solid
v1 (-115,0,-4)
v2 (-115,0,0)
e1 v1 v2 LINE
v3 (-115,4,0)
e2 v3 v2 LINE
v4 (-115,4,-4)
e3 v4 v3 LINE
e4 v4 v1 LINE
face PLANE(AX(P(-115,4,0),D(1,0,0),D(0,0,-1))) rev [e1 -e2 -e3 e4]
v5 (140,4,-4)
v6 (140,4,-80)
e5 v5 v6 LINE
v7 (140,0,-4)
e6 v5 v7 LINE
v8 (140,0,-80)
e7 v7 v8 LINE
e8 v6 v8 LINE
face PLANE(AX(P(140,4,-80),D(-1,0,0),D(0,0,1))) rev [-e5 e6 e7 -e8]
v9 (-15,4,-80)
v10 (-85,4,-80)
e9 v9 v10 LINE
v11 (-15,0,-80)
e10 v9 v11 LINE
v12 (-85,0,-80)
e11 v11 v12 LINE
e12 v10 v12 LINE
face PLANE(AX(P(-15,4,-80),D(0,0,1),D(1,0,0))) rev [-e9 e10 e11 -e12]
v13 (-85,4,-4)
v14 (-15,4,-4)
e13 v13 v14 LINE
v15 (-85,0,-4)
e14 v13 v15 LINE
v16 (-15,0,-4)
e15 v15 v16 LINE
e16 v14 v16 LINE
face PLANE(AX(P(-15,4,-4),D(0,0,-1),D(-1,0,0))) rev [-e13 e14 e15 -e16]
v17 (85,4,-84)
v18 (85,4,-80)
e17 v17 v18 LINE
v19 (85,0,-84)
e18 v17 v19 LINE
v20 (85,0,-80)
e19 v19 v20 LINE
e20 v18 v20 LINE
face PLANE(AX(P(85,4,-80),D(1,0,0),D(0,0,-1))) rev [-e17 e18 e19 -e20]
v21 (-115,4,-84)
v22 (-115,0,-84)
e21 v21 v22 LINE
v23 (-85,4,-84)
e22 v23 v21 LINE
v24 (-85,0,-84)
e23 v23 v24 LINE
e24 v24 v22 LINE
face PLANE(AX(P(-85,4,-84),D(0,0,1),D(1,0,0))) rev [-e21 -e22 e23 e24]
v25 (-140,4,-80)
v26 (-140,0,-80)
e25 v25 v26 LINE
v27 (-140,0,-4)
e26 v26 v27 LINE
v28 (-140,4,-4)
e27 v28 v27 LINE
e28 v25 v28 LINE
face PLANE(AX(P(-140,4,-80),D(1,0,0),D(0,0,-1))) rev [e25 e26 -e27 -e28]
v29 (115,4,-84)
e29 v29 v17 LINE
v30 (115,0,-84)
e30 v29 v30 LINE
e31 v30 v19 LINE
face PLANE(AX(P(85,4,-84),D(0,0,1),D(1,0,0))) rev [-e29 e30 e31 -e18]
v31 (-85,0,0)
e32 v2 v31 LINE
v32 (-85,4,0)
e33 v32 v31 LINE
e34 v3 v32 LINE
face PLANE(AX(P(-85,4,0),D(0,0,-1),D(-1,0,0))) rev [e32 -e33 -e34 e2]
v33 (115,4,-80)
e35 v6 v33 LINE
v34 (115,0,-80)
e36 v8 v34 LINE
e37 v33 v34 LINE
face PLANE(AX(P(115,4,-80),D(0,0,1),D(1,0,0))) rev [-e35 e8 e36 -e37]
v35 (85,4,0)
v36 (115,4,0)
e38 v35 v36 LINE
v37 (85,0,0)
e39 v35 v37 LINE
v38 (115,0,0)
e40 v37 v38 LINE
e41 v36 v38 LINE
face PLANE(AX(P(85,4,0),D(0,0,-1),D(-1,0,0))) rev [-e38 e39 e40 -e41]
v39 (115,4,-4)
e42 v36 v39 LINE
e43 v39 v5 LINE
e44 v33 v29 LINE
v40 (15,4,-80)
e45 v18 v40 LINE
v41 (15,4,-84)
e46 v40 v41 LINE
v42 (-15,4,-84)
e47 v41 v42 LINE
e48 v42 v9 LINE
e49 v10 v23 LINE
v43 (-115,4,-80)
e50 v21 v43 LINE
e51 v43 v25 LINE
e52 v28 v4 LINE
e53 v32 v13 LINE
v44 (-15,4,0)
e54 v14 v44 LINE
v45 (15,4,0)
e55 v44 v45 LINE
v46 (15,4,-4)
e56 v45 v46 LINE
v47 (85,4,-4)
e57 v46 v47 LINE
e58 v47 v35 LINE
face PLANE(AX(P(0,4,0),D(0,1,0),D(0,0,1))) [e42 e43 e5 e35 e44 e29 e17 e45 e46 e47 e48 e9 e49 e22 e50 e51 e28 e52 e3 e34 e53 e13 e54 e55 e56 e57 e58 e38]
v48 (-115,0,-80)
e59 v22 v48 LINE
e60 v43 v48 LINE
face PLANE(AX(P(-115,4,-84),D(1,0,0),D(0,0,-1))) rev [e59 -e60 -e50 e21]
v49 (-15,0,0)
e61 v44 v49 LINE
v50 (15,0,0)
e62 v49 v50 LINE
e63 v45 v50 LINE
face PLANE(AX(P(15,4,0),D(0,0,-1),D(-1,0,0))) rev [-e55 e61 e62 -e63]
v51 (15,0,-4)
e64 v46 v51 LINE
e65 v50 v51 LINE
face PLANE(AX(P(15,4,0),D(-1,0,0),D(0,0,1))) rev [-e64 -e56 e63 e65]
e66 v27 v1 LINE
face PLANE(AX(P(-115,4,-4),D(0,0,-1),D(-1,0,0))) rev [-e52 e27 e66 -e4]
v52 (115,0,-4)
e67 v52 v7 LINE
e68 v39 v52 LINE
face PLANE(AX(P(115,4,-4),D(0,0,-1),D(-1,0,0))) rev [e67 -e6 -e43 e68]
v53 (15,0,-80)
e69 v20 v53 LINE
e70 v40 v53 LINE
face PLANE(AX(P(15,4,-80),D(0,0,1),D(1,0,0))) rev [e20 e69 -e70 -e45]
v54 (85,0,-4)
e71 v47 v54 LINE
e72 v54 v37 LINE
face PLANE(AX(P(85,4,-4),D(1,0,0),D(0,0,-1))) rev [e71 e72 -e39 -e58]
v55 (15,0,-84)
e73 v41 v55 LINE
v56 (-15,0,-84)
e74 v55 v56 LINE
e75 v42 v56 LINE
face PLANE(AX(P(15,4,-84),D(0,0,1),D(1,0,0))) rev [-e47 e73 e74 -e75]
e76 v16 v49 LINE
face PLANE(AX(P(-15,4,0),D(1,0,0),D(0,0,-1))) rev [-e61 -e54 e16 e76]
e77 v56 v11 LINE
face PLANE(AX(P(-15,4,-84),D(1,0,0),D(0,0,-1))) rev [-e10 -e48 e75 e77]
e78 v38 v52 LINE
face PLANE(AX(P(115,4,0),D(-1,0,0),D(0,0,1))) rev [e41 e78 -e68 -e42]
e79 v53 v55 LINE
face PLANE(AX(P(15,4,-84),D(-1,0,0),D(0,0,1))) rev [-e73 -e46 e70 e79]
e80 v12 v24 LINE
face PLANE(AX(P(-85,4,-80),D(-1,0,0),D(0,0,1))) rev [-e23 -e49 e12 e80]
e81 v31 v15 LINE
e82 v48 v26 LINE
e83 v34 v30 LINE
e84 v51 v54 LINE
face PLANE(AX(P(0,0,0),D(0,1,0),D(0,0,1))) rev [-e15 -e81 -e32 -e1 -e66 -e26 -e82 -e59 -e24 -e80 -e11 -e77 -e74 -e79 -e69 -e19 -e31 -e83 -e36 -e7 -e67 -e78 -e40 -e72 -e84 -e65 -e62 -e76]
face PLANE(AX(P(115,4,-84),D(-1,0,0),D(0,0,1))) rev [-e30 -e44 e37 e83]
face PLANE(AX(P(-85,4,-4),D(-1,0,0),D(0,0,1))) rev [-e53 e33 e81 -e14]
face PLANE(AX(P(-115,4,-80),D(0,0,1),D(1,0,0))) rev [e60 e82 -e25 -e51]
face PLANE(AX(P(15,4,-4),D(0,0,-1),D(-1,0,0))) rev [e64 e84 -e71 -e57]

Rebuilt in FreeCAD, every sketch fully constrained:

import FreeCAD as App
import Part
import Sketcher
from FreeCAD import Vector

doc = App.newDocument("Part")
body = doc.addObject("PartDesign::Body", "Body")

# Sketch on XZ plane
sketch1 = body.newObject("Sketcher::SketchObject", "Sketch")
sketch1.AttachmentSupport = (doc.getObject("XZ_Plane"), [""])
sketch1.MapMode = "FlatFace"
sketch1.addGeometry(Part.LineSegment(Vector(-15, 0, 0), Vector(15, 0, 0)), False)
sketch1.addGeometry(Part.LineSegment(Vector(15, 0, 0), Vector(15, -4, 0)), False)
sketch1.addGeometry(Part.LineSegment(Vector(15, -4, 0), Vector(85, -4, 0)), False)
sketch1.addGeometry(Part.LineSegment(Vector(85, -4, 0), Vector(85, 0, 0)), False)
sketch1.addGeometry(Part.LineSegment(Vector(85, 0, 0), Vector(115, 0, 0)), False)
sketch1.addGeometry(Part.LineSegment(Vector(115, 0, 0), Vector(115, -4, 0)), False)
sketch1.addGeometry(Part.LineSegment(Vector(115, -4, 0), Vector(140, -4, 0)), False)
sketch1.addGeometry(Part.LineSegment(Vector(140, -4, 0), Vector(140, -80, 0)), False)
sketch1.addGeometry(Part.LineSegment(Vector(140, -80, 0), Vector(115, -80, 0)), False)
sketch1.addGeometry(Part.LineSegment(Vector(115, -80, 0), Vector(115, -84, 0)), False)
sketch1.addGeometry(Part.LineSegment(Vector(115, -84, 0), Vector(85, -84, 0)), False)
sketch1.addGeometry(Part.LineSegment(Vector(85, -84, 0), Vector(85, -80, 0)), False)
sketch1.addGeometry(Part.LineSegment(Vector(85, -80, 0), Vector(15, -80, 0)), False)
sketch1.addGeometry(Part.LineSegment(Vector(15, -80, 0), Vector(15, -84, 0)), False)
sketch1.addGeometry(Part.LineSegment(Vector(15, -84, 0), Vector(-15, -84, 0)), False)
sketch1.addGeometry(Part.LineSegment(Vector(-15, -84, 0), Vector(-15, -80, 0)), False)
sketch1.addGeometry(Part.LineSegment(Vector(-15, -80, 0), Vector(-85, -80, 0)), False)
sketch1.addGeometry(Part.LineSegment(Vector(-85, -80, 0), Vector(-85, -84, 0)), False)
sketch1.addGeometry(Part.LineSegment(Vector(-85, -84, 0), Vector(-115, -84, 0)), False)
sketch1.addGeometry(Part.LineSegment(Vector(-115, -84, 0), Vector(-115, -80, 0)), False)
sketch1.addGeometry(Part.LineSegment(Vector(-115, -80, 0), Vector(-140, -80, 0)), False)
sketch1.addGeometry(Part.LineSegment(Vector(-140, -80, 0), Vector(-140, -4, 0)), False)
sketch1.addGeometry(Part.LineSegment(Vector(-140, -4, 0), Vector(-115, -4, 0)), False)
sketch1.addGeometry(Part.LineSegment(Vector(-115, -4, 0), Vector(-115, 0, 0)), False)
sketch1.addGeometry(Part.LineSegment(Vector(-115, 0, 0), Vector(-85, 0, 0)), False)
sketch1.addGeometry(Part.LineSegment(Vector(-85, 0, 0), Vector(-85, -4, 0)), False)
sketch1.addGeometry(Part.LineSegment(Vector(-85, -4, 0), Vector(-15, -4, 0)), False)
sketch1.addGeometry(Part.LineSegment(Vector(-15, -4, 0), Vector(-15, 0, 0)), False)
sketch1.addConstraint(Sketcher.Constraint("Coincident", 0, 2, 1, 1))
sketch1.addConstraint(Sketcher.Constraint("Coincident", 1, 2, 2, 1))
sketch1.addConstraint(Sketcher.Constraint("Coincident", 2, 2, 3, 1))
sketch1.addConstraint(Sketcher.Constraint("Coincident", 3, 2, 4, 1))
sketch1.addConstraint(Sketcher.Constraint("Coincident", 4, 2, 5, 1))
sketch1.addConstraint(Sketcher.Constraint("Coincident", 5, 2, 6, 1))
sketch1.addConstraint(Sketcher.Constraint("Coincident", 6, 2, 7, 1))
sketch1.addConstraint(Sketcher.Constraint("Coincident", 7, 2, 8, 1))
sketch1.addConstraint(Sketcher.Constraint("Coincident", 8, 2, 9, 1))
sketch1.addConstraint(Sketcher.Constraint("Coincident", 9, 2, 10, 1))
sketch1.addConstraint(Sketcher.Constraint("Coincident", 10, 2, 11, 1))
sketch1.addConstraint(Sketcher.Constraint("Coincident", 11, 2, 12, 1))
sketch1.addConstraint(Sketcher.Constraint("Coincident", 12, 2, 13, 1))
sketch1.addConstraint(Sketcher.Constraint("Coincident", 13, 2, 14, 1))
sketch1.addConstraint(Sketcher.Constraint("Coincident", 14, 2, 15, 1))
sketch1.addConstraint(Sketcher.Constraint("Coincident", 15, 2, 16, 1))
sketch1.addConstraint(Sketcher.Constraint("Coincident", 16, 2, 17, 1))
sketch1.addConstraint(Sketcher.Constraint("Coincident", 17, 2, 18, 1))
sketch1.addConstraint(Sketcher.Constraint("Coincident", 18, 2, 19, 1))
sketch1.addConstraint(Sketcher.Constraint("Coincident", 19, 2, 20, 1))
sketch1.addConstraint(Sketcher.Constraint("Coincident", 20, 2, 21, 1))
sketch1.addConstraint(Sketcher.Constraint("Coincident", 21, 2, 22, 1))
sketch1.addConstraint(Sketcher.Constraint("Coincident", 22, 2, 23, 1))
sketch1.addConstraint(Sketcher.Constraint("Coincident", 23, 2, 24, 1))
sketch1.addConstraint(Sketcher.Constraint("Coincident", 24, 2, 25, 1))
sketch1.addConstraint(Sketcher.Constraint("Coincident", 25, 2, 26, 1))
sketch1.addConstraint(Sketcher.Constraint("Coincident", 26, 2, 27, 1))
sketch1.addConstraint(Sketcher.Constraint("Coincident", 27, 2, 0, 1))
sketch1.addConstraint(Sketcher.Constraint("Horizontal", 0))
sketch1.addConstraint(Sketcher.Constraint("Vertical", 1))
sketch1.addConstraint(Sketcher.Constraint("Horizontal", 2))
sketch1.addConstraint(Sketcher.Constraint("Vertical", 3))
sketch1.addConstraint(Sketcher.Constraint("Horizontal", 4))
sketch1.addConstraint(Sketcher.Constraint("Vertical", 5))
sketch1.addConstraint(Sketcher.Constraint("Horizontal", 6))
sketch1.addConstraint(Sketcher.Constraint("Vertical", 7))
sketch1.addConstraint(Sketcher.Constraint("Horizontal", 8))
sketch1.addConstraint(Sketcher.Constraint("Vertical", 9))
sketch1.addConstraint(Sketcher.Constraint("Horizontal", 10))
sketch1.addConstraint(Sketcher.Constraint("Vertical", 11))
sketch1.addConstraint(Sketcher.Constraint("Horizontal", 12))
sketch1.addConstraint(Sketcher.Constraint("Vertical", 13))
sketch1.addConstraint(Sketcher.Constraint("Horizontal", 14))
sketch1.addConstraint(Sketcher.Constraint("Vertical", 15))
sketch1.addConstraint(Sketcher.Constraint("Horizontal", 16))
sketch1.addConstraint(Sketcher.Constraint("Vertical", 17))
sketch1.addConstraint(Sketcher.Constraint("Horizontal", 18))
sketch1.addConstraint(Sketcher.Constraint("Vertical", 19))
sketch1.addConstraint(Sketcher.Constraint("Horizontal", 20))
sketch1.addConstraint(Sketcher.Constraint("Vertical", 21))
sketch1.addConstraint(Sketcher.Constraint("Horizontal", 22))
sketch1.addConstraint(Sketcher.Constraint("Vertical", 23))
sketch1.addConstraint(Sketcher.Constraint("Horizontal", 24))
sketch1.addConstraint(Sketcher.Constraint("Vertical", 25))
sketch1.addConstraint(Sketcher.Constraint("Horizontal", 26))
sketch1.addConstraint(Sketcher.Constraint("Vertical", 27))
sketch1.addConstraint(Sketcher.Constraint("Symmetric", 4, 2, 23, 2, -1, 1))
sketch1.addConstraint(Sketcher.Constraint("Symmetric", 0, 2, 27, 2, -1, 1))
sketch1.addConstraint(Sketcher.Constraint("Symmetric", 12, 2, 15, 2, -2))
sketch1.addConstraint(Sketcher.Constraint("Symmetric", 10, 2, 17, 2, -2))
sketch1.addConstraint(Sketcher.Constraint("Symmetric", 8, 2, 19, 2, -2))
sketch1.addConstraint(Sketcher.Constraint("Symmetric", 6, 2, 21, 2, -2))
sketch1.addConstraint(Sketcher.Constraint("Symmetric", 3, 2, 24, 2, -2))
sketch1.addConstraint(Sketcher.Constraint("Horizontal", 2, 2, 5, 2))
sketch1.addConstraint(Sketcher.Constraint("Horizontal", 8, 2, 11, 2))
sketch1.addConstraint(Sketcher.Constraint("Horizontal", 10, 2, 13, 2))
sketch1.addConstraint(Sketcher.Constraint("Horizontal", 22, 2, 25, 2))
sketch1.addConstraint(Sketcher.Constraint("Vertical", 5, 2, 8, 2))
sketch1.addConstraint(Sketcher.Constraint("Vertical", 3, 2, 10, 2))
sketch1.addConstraint(Sketcher.Constraint("Vertical", 1, 2, 12, 2))
sketch1.addConstraint(Sketcher.Constraint("Equal", 0, 4))
sketch1.addConstraint(Sketcher.Constraint("Equal", 5, 9))
sketch1.addConstraint(Sketcher.Constraint("DistanceX", 0, 1, 0, 2, 30.0))
sketch1.addConstraint(Sketcher.Constraint("DistanceX", 2, 1, 2, 2, 70.0))
sketch1.addConstraint(Sketcher.Constraint("DistanceX", 6, 1, 6, 2, 25.0))
sketch1.addConstraint(Sketcher.Constraint("DistanceY", 1, 2, 1, 1, 4.0))
sketch1.addConstraint(Sketcher.Constraint("DistanceY", 7, 2, 7, 1, 76.0))
pad1 = body.newObject("PartDesign::Pad", "Pad")
pad1.Profile = sketch1
pad1.Length = 4
pad1.Reversed = True

doc.recompute()
